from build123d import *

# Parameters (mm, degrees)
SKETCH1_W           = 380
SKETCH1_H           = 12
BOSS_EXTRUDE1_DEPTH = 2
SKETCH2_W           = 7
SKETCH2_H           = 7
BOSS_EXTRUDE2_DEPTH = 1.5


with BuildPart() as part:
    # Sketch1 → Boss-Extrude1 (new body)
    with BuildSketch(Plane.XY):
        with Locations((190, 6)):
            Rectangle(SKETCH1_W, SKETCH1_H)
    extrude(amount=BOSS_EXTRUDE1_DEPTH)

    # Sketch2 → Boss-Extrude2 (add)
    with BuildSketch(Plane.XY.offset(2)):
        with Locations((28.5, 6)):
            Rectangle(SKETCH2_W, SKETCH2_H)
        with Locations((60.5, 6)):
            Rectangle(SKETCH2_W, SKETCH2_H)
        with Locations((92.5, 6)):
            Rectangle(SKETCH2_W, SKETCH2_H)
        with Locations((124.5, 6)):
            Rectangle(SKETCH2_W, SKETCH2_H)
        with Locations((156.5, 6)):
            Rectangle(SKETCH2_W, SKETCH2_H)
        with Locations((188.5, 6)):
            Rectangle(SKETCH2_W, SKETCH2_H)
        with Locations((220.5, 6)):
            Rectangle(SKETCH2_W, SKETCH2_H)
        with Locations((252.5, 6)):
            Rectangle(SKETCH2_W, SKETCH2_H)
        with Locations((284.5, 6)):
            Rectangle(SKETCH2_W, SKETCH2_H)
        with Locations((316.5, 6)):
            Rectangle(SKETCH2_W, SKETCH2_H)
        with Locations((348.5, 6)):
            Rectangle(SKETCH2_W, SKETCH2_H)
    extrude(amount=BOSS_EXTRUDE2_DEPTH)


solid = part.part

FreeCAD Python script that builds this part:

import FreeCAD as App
import Part
import Sketcher

V = App.Vector
Q = App.Units.Quantity

doc = App.newDocument("Part")
body = doc.addObject("PartDesign::Body", "Body")

sketch1 = doc.addObject("Sketcher::SketchObject", "Sketch")
body.addObject(sketch1)
sketch1.AttachmentSupport = (doc.XY_Plane, [""])
sketch1.MapMode = "FlatFace"
sketch1.addGeometry([
    Part.LineSegment(V(0, 12, 0), V(0, 0, 0)),
    Part.LineSegment(V(0, 0, 0), V(380, 0, 0)),
    Part.LineSegment(V(380, 0, 0), V(380, 12, 0)),
    Part.LineSegment(V(380, 12, 0), V(0, 12, 0)),
], False)
sketch1.addConstraint([
    Sketcher.Constraint("Coincident", 0, 2, 1, 1),
    Sketcher.Constraint("Coincident", 1, 2, 2, 1),
    Sketcher.Constraint("Coincident", 2, 2, 3, 1),
    Sketcher.Constraint("Coincident", 3, 2, 0, 1),
    Sketcher.Constraint("Vertical", 0),
    Sketcher.Constraint("Horizontal", 1),
    Sketcher.Constraint("Vertical", 2),
    Sketcher.Constraint("Horizontal", 3),
    Sketcher.Constraint("Coincident", 0, 2, -1, 1),
    Sketcher.Constraint("DistanceX", 1, 1, 1, 2, Q("380 mm")),
    Sketcher.Constraint("DistanceY", 0, 2, 0, 1, Q("12 mm")),
])
pad1 = doc.addObject("PartDesign::Pad", "Pad")
body.addObject(pad1)
pad1.Profile = sketch1
pad1.Length = 2

sketch2 = doc.addObject("Sketcher::SketchObject", "Sketch001")
body.addObject(sketch2)
sketch2.AttachmentSupport = (doc.XY_Plane, [""])
sketch2.MapMode = "FlatFace"
sketch2.AttachmentOffset = App.Placement(V(0, 0, 2), App.Rotation())
sketch2.addGeometry([
    Part.LineSegment(V(25, 10, 0), V(25, 2, 0)),
    Part.LineSegment(V(25, 2, 0), V(32, 2, 0)),
    Part.LineSegment(V(32, 2, 0), V(32, 10, 0)),
    Part.LineSegment(V(32, 10, 0), V(25, 10, 0)),
    Part.LineSegment(V(57, 10, 0), V(57, 2, 0)),
    Part.LineSegment(V(57, 2, 0), V(64, 2, 0)),
    Part.LineSegment(V(64, 2, 0), V(64, 10, 0)),
    Part.LineSegment(V(64, 10, 0), V(57, 10, 0)),
    Part.LineSegment(V(89, 10, 0), V(89, 2, 0)),
    Part.LineSegment(V(89, 2, 0), V(96, 2, 0)),
    Part.LineSegment(V(96, 2, 0), V(96, 10, 0)),
    Part.LineSegment(V(96, 10, 0), V(89, 10, 0)),
    Part.LineSegment(V(121, 10, 0), V(121, 2, 0)),
    Part.LineSegment(V(121, 2, 0), V(128, 2, 0)),
    Part.LineSegment(V(128, 2, 0), V(128, 10, 0)),
    Part.LineSegment(V(128, 10, 0), V(121, 10, 0)),
    Part.LineSegment(V(153, 10, 0), V(153, 2, 0)),
    Part.LineSegment(V(153, 2, 0), V(160, 2, 0)),
    Part.LineSegment(V(160, 2, 0), V(160, 10, 0)),
    Part.LineSegment(V(160, 10, 0), V(153, 10, 0)),
    Part.LineSegment(V(185, 10, 0), V(185, 2, 0)),
    Part.LineSegment(V(185, 2, 0), V(192, 2, 0)),
    Part.LineSegment(V(192, 2, 0), V(192, 10, 0)),
    Part.LineSegment(V(192, 10, 0), V(185, 10, 0)),
    Part.LineSegment(V(217, 10, 0), V(217, 2, 0)),
    Part.LineSegment(V(217, 2, 0), V(224, 2, 0)),
    Part.LineSegment(V(224, 2, 0), V(224, 10, 0)),
    Part.LineSegment(V(224, 10, 0), V(217, 10, 0)),
    Part.LineSegment(V(249, 10, 0), V(249, 2, 0)),
    Part.LineSegment(V(249, 2, 0), V(256, 2, 0)),
    Part.LineSegment(V(256, 2, 0), V(256, 10, 0)),
    Part.LineSegment(V(256, 10, 0), V(249, 10, 0)),
    Part.LineSegment(V(281, 10, 0), V(281, 2, 0)),
    Part.LineSegment(V(281, 2, 0), V(288, 2, 0)),
    Part.LineSegment(V(288, 2, 0), V(288, 10, 0)),
    Part.LineSegment(V(288, 10, 0), V(281, 10, 0)),
    Part.LineSegment(V(313, 10, 0), V(313, 2, 0)),
    Part.LineSegment(V(313, 2, 0), V(320, 2, 0)),
    Part.LineSegment(V(320, 2, 0), V(320, 10, 0)),
    Part.LineSegment(V(320, 10, 0), V(313, 10, 0)),
    Part.LineSegment(V(345, 10, 0), V(345, 2, 0)),
    Part.LineSegment(V(345, 2, 0), V(352, 2, 0)),
    Part.LineSegment(V(352, 2, 0), V(352, 10, 0)),
    Part.LineSegment(V(352, 10, 0), V(345, 10, 0)),
], False)
sketch2.addConstraint([
    Sketcher.Constraint("Coincident", 0, 2, 1, 1),
    Sketcher.Constraint("Coincident", 1, 2, 2, 1),
    Sketcher.Constraint("Coincident", 2, 2, 3, 1),
    Sketcher.Constraint("Coincident", 3, 2, 0, 1),
    Sketcher.Constraint("Coincident", 4, 2, 5, 1),
    Sketcher.Constraint("Coincident", 5, 2, 6, 1),
    Sketcher.Constraint("Coincident", 6, 2, 7, 1),
    Sketcher.Constraint("Coincident", 7, 2, 4, 1),
    Sketcher.Constraint("Coincident", 8, 2, 9, 1),
    Sketcher.Constraint("Coincident", 9, 2, 10, 1),
    Sketcher.Constraint("Coincident", 10, 2, 11, 1),
    Sketcher.Constraint("Coincident", 11, 2, 8, 1),
    Sketcher.Constraint("Coincident", 12, 2, 13, 1),
    Sketcher.Constraint("Coincident", 13, 2, 14, 1),
    Sketcher.Constraint("Coincident", 14, 2, 15, 1),
    Sketcher.Constraint("Coincident", 15, 2, 12, 1),
    Sketcher.Constraint("Coincident", 16, 2, 17, 1),
    Sketcher.Constraint("Coincident", 17, 2, 18, 1),
    Sketcher.Constraint("Coincident", 18, 2, 19, 1),
    Sketcher.Constraint("Coincident", 19, 2, 16, 1),
    Sketcher.Constraint("Coincident", 20, 2, 21, 1),
    Sketcher.Constraint("Coincident", 21, 2, 22, 1),
    Sketcher.Constraint("Coincident", 22, 2, 23, 1),
    Sketcher.Constraint("Coincident", 23, 2, 20, 1),
    Sketcher.Constraint("Coincident", 24, 2, 25, 1),
    Sketcher.Constraint("Coincident", 25, 2, 26, 1),
    Sketcher.Constraint("Coincident", 26, 2, 27, 1),
    Sketcher.Constraint("Coincident", 27, 2, 24, 1),
    Sketcher.Constraint("Coincident", 28, 2, 29, 1),
    Sketcher.Constraint("Coincident", 29, 2, 30, 1),
    Sketcher.Constraint("Coincident", 30, 2, 31, 1),
    Sketcher.Constraint("Coincident", 31, 2, 28, 1),
    Sketcher.Constraint("Coincident", 32, 2, 33, 1),
    Sketcher.Constraint("Coincident", 33, 2, 34, 1),
    Sketcher.Constraint("Coincident", 34, 2, 35, 1),
    Sketcher.Constraint("Coincident", 35, 2, 32, 1),
    Sketcher.Constraint("Coincident", 36, 2, 37, 1),
    Sketcher.Constraint("Coincident", 37, 2, 38, 1),
    Sketcher.Constraint("Coincident", 38, 2, 39, 1),
    Sketcher.Constraint("Coincident", 39, 2, 36, 1),
    Sketcher.Constraint("Coincident", 40, 2, 41, 1),
    Sketcher.Constraint("Coincident", 41, 2, 42, 1),
    Sketcher.Constraint("Coincident", 42, 2, 43, 1),
    Sketcher.Constraint("Coincident", 43, 2, 40, 1),
    Sketcher.Constraint("Vertical", 0),
    Sketcher.Constraint("Horizontal", 1),
    Sketcher.Constraint("Vertical", 2),
    Sketcher.Constraint("Horizontal", 3),
    Sketcher.Constraint("Vertical", 4),
    Sketcher.Constraint("Horizontal", 5),
    Sketcher.Constraint("Vertical", 6),
    Sketcher.Constraint("Horizontal", 7),
    Sketcher.Constraint("Vertical", 8),
    Sketcher.Constraint("Horizontal", 9),
    Sketcher.Constraint("Vertical", 10),
    Sketcher.Constraint("Horizontal", 11),
    Sketcher.Constraint("Vertical", 12),
    Sketcher.Constraint("Horizontal", 13),
    Sketcher.Constraint("Vertical", 14),
    Sketcher.Constraint("Horizontal", 15),
    Sketcher.Constraint("Vertical", 16),
    Sketcher.Constraint("Horizontal", 17),
    Sketcher.Constraint("Vertical", 18),
    Sketcher.Constraint("Horizontal", 19),
    Sketcher.Constraint("Vertical", 20),
    Sketcher.Constraint("Horizontal", 21),
    Sketcher.Constraint("Vertical", 22),
    Sketcher.Constraint("Horizontal", 23),
    Sketcher.Constraint("Vertical", 24),
    Sketcher.Constraint("Horizontal", 25),
    Sketcher.Constraint("Vertical", 26),
    Sketcher.Constraint("Horizontal", 27),
    Sketcher.Constraint("Vertical", 28),
    Sketcher.Constraint("Horizontal", 29),
    Sketcher.Constraint("Vertical", 30),
    Sketcher.Constraint("Horizontal", 31),
    Sketcher.Constraint("Vertical", 32),
    Sketcher.Constraint("Horizontal", 33),
    Sketcher.Constraint("Vertical", 34),
    Sketcher.Constraint("Horizontal", 35),
    Sketcher.Constraint("Vertical", 36),
    Sketcher.Constraint("Horizontal", 37),
    Sketcher.Constraint("Vertical", 38),
    Sketcher.Constraint("Horizontal", 39),
    Sketcher.Constraint("Vertical", 40),
    Sketcher.Constraint("Horizontal", 41),
    Sketcher.Constraint("Vertical", 42),
    Sketcher.Constraint("Horizontal", 43),
    Sketcher.Constraint("Horizontal", 1, 2, 4, 2),
    Sketcher.Constraint("Horizontal", 3, 2, 6, 2),
    Sketcher.Constraint("Horizontal", 5, 2, 8, 2),
    Sketcher.Constraint("Horizontal", 7, 2, 10, 2),
    Sketcher.Constraint("Horizontal", 9, 2, 12, 2),
    Sketcher.Constraint("Horizontal", 11, 2, 14, 2),
    Sketcher.Constraint("Horizontal", 13, 2, 16, 2),
    Sketcher.Constraint("Horizontal", 15, 2, 18, 2),
    Sketcher.Constraint("Horizontal", 17, 2, 20, 2),
    Sketcher.Constraint("Horizontal", 19, 2, 22, 2),
    Sketcher.Constraint("Horizontal", 21, 2, 24, 2),
    Sketcher.Constraint("Horizontal", 23, 2, 26, 2),
    Sketcher.Constraint("Horizontal", 25, 2, 28, 2),
    Sketcher.Constraint("Horizontal", 27, 2, 30, 2),
    Sketcher.Constraint("Horizontal", 29, 2, 32, 2),
    Sketcher.Constraint("Horizontal", 31, 2, 34, 2),
    Sketcher.Constraint("Horizontal", 33, 2, 36, 2),
    Sketcher.Constraint("Horizontal", 35, 2, 38, 2),
    Sketcher.Constraint("Horizontal", 37, 2, 40, 2),
    Sketcher.Constraint("Horizontal", 39, 2, 42, 2),
    Sketcher.Constraint("Equal", 3, 5),
    Sketcher.Constraint("Equal", 7, 9),
    Sketcher.Constraint("Equal", 11, 13),
    Sketcher.Constraint("Equal", 15, 17),
    Sketcher.Constraint("Equal", 19, 21),
    Sketcher.Constraint("Equal", 23, 25),
    Sketcher.Constraint("Equal", 27, 29),
    Sketcher.Constraint("Equal", 31, 33),
    Sketcher.Constraint("Equal", 35, 37),
    Sketcher.Constraint("Equal", 39, 41),
    Sketcher.Constraint("Equal", 43, 0),
    Sketcher.Constraint("DistanceX", 1, 1, 1, 2, Q("7 mm")),
    Sketcher.Constraint("DistanceX", -1, 1, 0, 2, Q("25 mm")),
    Sketcher.Constraint("DistanceX", -1, 1, 4, 2, Q("57 mm")),
    Sketcher.Constraint("DistanceX", -1, 1, 8, 2, Q("89 mm")),
    Sketcher.Constraint("DistanceX", -1, 1, 12, 2, Q("121 mm")),
    Sketcher.Constraint("DistanceX", -1, 1, 16, 2, Q("153 mm")),
    Sketcher.Constraint("DistanceX", -1, 1, 20, 2, Q("185 mm")),
    Sketcher.Constraint("DistanceX", -1, 1, 24, 2, Q("217 mm")),
    Sketcher.Constraint("DistanceX", -1, 1, 28, 2, Q("249 mm")),
    Sketcher.Constraint("DistanceX", -1, 1, 32, 2, Q("281 mm")),
    Sketcher.Constraint("DistanceX", -1, 1, 36, 2, Q("313 mm")),
    Sketcher.Constraint("DistanceX", -1, 1, 40, 2, Q("345 mm")),
    Sketcher.Constraint("DistanceY", -1, 1, 0, 2, Q("2.5 mm")),
])
pad2 = doc.addObject("PartDesign::Pad", "Pad001")
body.addObject(pad2)
pad2.Profile = sketch2
pad2.Length = 1.5

doc.recompute()
